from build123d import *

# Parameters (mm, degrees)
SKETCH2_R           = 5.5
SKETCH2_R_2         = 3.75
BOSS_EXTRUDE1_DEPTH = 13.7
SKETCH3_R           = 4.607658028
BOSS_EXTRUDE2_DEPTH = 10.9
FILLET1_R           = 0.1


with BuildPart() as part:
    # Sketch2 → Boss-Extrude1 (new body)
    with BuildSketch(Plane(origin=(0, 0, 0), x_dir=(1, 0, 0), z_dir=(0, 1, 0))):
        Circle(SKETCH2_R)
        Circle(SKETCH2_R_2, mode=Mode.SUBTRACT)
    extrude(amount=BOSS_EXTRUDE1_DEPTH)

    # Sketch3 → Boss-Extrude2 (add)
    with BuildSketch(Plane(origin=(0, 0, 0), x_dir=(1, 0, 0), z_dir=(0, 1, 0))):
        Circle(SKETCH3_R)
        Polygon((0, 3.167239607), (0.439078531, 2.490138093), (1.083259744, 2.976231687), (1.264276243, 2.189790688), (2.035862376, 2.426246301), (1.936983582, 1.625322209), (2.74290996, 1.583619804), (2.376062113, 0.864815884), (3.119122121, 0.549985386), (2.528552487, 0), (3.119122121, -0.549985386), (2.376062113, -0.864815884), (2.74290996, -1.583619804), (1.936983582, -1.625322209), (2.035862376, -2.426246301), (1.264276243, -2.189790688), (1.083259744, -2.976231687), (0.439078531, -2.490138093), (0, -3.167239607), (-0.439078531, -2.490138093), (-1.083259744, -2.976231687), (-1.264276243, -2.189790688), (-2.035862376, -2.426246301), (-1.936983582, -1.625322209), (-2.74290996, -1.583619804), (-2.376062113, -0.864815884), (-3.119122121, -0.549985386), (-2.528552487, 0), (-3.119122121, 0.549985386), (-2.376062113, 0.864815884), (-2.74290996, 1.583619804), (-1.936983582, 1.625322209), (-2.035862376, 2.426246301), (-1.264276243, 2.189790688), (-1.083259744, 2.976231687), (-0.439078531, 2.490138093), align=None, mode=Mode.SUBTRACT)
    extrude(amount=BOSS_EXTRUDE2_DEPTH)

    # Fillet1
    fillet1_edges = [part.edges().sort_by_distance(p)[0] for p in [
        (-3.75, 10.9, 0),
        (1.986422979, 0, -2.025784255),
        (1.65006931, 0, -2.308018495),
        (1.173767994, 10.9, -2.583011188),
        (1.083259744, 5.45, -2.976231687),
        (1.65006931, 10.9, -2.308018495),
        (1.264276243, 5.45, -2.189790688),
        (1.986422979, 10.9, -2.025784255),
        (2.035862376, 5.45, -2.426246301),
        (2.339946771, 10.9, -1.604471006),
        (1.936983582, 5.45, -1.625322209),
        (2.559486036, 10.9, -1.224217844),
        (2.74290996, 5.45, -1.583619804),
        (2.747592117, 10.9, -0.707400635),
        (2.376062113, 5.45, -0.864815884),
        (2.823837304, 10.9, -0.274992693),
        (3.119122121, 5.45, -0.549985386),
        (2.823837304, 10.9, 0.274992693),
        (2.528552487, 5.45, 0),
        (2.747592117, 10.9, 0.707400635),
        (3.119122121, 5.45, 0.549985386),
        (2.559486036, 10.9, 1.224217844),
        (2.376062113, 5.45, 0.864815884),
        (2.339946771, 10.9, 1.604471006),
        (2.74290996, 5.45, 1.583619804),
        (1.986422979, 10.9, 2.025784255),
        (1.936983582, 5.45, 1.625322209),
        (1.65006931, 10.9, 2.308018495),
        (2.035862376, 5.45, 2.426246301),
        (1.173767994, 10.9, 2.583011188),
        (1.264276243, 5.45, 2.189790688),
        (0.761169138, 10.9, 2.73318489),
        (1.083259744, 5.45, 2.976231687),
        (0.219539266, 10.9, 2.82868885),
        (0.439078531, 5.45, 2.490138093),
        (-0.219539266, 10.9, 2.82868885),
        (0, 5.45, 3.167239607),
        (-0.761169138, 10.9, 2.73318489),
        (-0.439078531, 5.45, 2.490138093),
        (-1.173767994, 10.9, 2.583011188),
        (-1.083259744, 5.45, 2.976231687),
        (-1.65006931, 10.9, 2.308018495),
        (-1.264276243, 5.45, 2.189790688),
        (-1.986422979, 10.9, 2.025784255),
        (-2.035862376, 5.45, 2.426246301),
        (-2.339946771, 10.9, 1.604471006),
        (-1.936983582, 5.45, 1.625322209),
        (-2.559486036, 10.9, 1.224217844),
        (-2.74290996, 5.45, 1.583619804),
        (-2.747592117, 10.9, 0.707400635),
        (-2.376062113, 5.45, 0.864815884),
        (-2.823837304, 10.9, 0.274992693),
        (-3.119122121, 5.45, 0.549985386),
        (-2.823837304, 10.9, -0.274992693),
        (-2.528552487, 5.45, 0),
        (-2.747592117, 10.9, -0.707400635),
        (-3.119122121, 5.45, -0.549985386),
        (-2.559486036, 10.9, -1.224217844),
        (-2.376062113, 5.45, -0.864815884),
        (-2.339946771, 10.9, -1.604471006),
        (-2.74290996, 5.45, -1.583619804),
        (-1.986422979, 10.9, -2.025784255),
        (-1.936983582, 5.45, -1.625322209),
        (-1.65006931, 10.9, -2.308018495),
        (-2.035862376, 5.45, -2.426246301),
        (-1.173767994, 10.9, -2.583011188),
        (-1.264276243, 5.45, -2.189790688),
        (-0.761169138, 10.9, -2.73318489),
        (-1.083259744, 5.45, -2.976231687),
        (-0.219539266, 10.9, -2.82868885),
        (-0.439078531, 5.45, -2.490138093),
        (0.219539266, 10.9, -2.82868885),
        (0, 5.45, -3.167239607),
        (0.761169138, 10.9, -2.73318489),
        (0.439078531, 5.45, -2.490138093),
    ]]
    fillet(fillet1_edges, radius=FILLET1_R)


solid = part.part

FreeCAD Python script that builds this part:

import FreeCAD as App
import Part
import Sketcher
from FreeCAD import Vector
Q = App.Units.Quantity


def edges_at(feature, points):
    """Names of the edges that pass closest to the given points."""
    edges = feature.Shape.Edges
    near = lambda p: min(range(len(edges)), key=lambda i: edges[i].distToShape(Part.Vertex(*p))[0])
    return sorted({f"Edge{near(p) + 1}" for p in points})

doc = App.newDocument("Part")
body = doc.addObject("PartDesign::Body", "Body")

# Sketch on XZ plane
sketch1 = body.newObject("Sketcher::SketchObject", "Sketch")
sketch1.AttachmentSupport = (doc.getObject("XZ_Plane"), [""])
sketch1.MapMode = "FlatFace"
sketch1.addGeometry(Part.Circle(Vector(0, 0, 0), Vector(0, 0, 1), 5.5), False)
sketch1.addGeometry(Part.Circle(Vector(0, 0, 0), Vector(0, 0, 1), 3.8), False)
sketch1.addConstraint(Sketcher.Constraint("Coincident", 0, 3, -1, 1))
sketch1.addConstraint(Sketcher.Constraint("Coincident", 1, 3, -1, 1))
sketch1.addConstraint(Sketcher.Constraint("Diameter", 0, Q("11 mm")))
sketch1.addConstraint(Sketcher.Constraint("Diameter", 1, Q("7.5 mm")))
pad1 = body.newObject("PartDesign::Pad", "Pad")
pad1.Profile = sketch1
pad1.Length = 13.7
pad1.Reversed = True

# Sketch on XZ plane
sketch2 = body.newObject("Sketcher::SketchObject", "Sketch001")
sketch2.AttachmentSupport = (doc.getObject("XZ_Plane"), [""])
sketch2.MapMode = "FlatFace"
sketch2.addGeometry(Part.Circle(Vector(0, 0, 0), Vector(0, 0, 1), 4.6), False)
sketch2.addGeometry(Part.LineSegment(Vector(-0.4, -2.5, 0), Vector(0, -3.2, 0)), False)
sketch2.addGeometry(Part.LineSegment(Vector(0, -3.2, 0), Vector(0.4, -2.5, 0)), False)
sketch2.addGeometry(Part.LineSegment(Vector(0.4, -2.5, 0), Vector(1.1, -3, 0)), False)
sketch2.addGeometry(Part.LineSegment(Vector(1.1, -3, 0), Vector(1.3, -2.2, 0)), False)
sketch2.addGeometry(Part.LineSegment(Vector(1.3, -2.2, 0), Vector(2, -2.4, 0)), False)
sketch2.addGeometry(Part.LineSegment(Vector(2, -2.4, 0), Vector(1.9, -1.6, 0)), False)
sketch2.addGeometry(Part.LineSegment(Vector(1.9, -1.6, 0), Vector(2.7, -1.6, 0)), False)
sketch2.addGeometry(Part.LineSegment(Vector(2.7, -1.6, 0), Vector(2.4, -0.9, 0)), False)
sketch2.addGeometry(Part.LineSegment(Vector(2.4, -0.9, 0), Vector(3.1, -0.5, 0)), False)
sketch2.addGeometry(Part.LineSegment(Vector(3.1, -0.5, 0), Vector(2.5, 0, 0)), False)
sketch2.addGeometry(Part.LineSegment(Vector(2.5, 0, 0), Vector(3.1, 0.5, 0)), False)
sketch2.addGeometry(Part.LineSegment(Vector(3.1, 0.5, 0), Vector(2.4, 0.9, 0)), False)
sketch2.addGeometry(Part.LineSegment(Vector(2.4, 0.9, 0), Vector(2.7, 1.6, 0)), False)
sketch2.addGeometry(Part.LineSegment(Vector(2.7, 1.6, 0), Vector(1.9, 1.6, 0)), False)
sketch2.addGeometry(Part.LineSegment(Vector(1.9, 1.6, 0), Vector(2, 2.4, 0)), False)
sketch2.addGeometry(Part.LineSegment(Vector(2, 2.4, 0), Vector(1.3, 2.2, 0)), False)
sketch2.addGeometry(Part.LineSegment(Vector(1.3, 2.2, 0), Vector(1.1, 3, 0)), False)
sketch2.addGeometry(Part.LineSegment(Vector(1.1, 3, 0), Vector(0.4, 2.5, 0)), False)
sketch2.addGeometry(Part.LineSegment(Vector(0.4, 2.5, 0), Vector(0, 3.2, 0)), False)
sketch2.addGeometry(Part.LineSegment(Vector(0, 3.2, 0), Vector(-0.4, 2.5, 0)), False)
sketch2.addGeometry(Part.LineSegment(Vector(-0.4, 2.5, 0), Vector(-1.1, 3, 0)), False)
sketch2.addGeometry(Part.LineSegment(Vector(-1.1, 3, 0), Vector(-1.3, 2.2, 0)), False)
sketch2.addGeometry(Part.LineSegment(Vector(-1.3, 2.2, 0), Vector(-2, 2.4, 0)), False)
sketch2.addGeometry(Part.LineSegment(Vector(-2, 2.4, 0), Vector(-1.9, 1.6, 0)), False)
sketch2.addGeometry(Part.LineSegment(Vector(-1.9, 1.6, 0), Vector(-2.7, 1.6, 0)), False)
sketch2.addGeometry(Part.LineSegment(Vector(-2.7, 1.6, 0), Vector(-2.4, 0.9, 0)), False)
sketch2.addGeometry(Part.LineSegment(Vector(-2.4, 0.9, 0), Vector(-3.1, 0.5, 0)), False)
sketch2.addGeometry(Part.LineSegment(Vector(-3.1, 0.5, 0), Vector(-2.5, 0, 0)), False)
sketch2.addGeometry(Part.LineSegment(Vector(-2.5, 0, 0), Vector(-3.1, -0.5, 0)), False)
sketch2.addGeometry(Part.LineSegment(Vector(-3.1, -0.5, 0), Vector(-2.4, -0.9, 0)), False)
sketch2.addGeometry(Part.LineSegment(Vector(-2.4, -0.9, 0), Vector(-2.7, -1.6, 0)), False)
sketch2.addGeometry(Part.LineSegment(Vector(-2.7, -1.6, 0), Vector(-1.9, -1.6, 0)), False)
sketch2.addGeometry(Part.LineSegment(Vector(-1.9, -1.6, 0), Vector(-2, -2.4, 0)), False)
sketch2.addGeometry(Part.LineSegment(Vector(-2, -2.4, 0), Vector(-1.3, -2.2, 0)), False)
sketch2.addGeometry(Part.LineSegment(Vector(-1.3, -2.2, 0), Vector(-1.1, -3, 0)), False)
sketch2.addGeometry(Part.LineSegment(Vector(-1.1, -3, 0), Vector(-0.4, -2.5, 0)), False)
sketch2.addConstraint(Sketcher.Constraint("Coincident", 1, 2, 2, 1))
sketch2.addConstraint(Sketcher.Constraint("Coincident", 2, 2, 3, 1))
sketch2.addConstraint(Sketcher.Constraint("Coincident", 3, 2, 4, 1))
sketch2.addConstraint(Sketcher.Constraint("Coincident", 4, 2, 5, 1))
sketch2.addConstraint(Sketcher.Constraint("Coincident", 5, 2, 6, 1))
sketch2.addConstraint(Sketcher.Constraint("Coincident", 6, 2, 7, 1))
sketch2.addConstraint(Sketcher.Constraint("Coincident", 7, 2, 8, 1))
sketch2.addConstraint(Sketcher.Constraint("Coincident", 8, 2, 9, 1))
sketch2.addConstraint(Sketcher.Constraint("Coincident", 9, 2, 10, 1))
sketch2.addConstraint(Sketcher.Constraint("Coincident", 10, 2, 11, 1))
sketch2.addConstraint(Sketcher.Constraint("Coincident", 11, 2, 12, 1))
sketch2.addConstraint(Sketcher.Constraint("Coincident", 12, 2, 13, 1))
sketch2.addConstraint(Sketcher.Constraint("Coincident", 13, 2, 14, 1))
sketch2.addConstraint(Sketcher.Constraint("Coincident", 14, 2, 15, 1))
sketch2.addConstraint(Sketcher.Constraint("Coincident", 15, 2, 16, 1))
sketch2.addConstraint(Sketcher.Constraint("Coincident", 16, 2, 17, 1))
sketch2.addConstraint(Sketcher.Constraint("Coincident", 17, 2, 18, 1))
sketch2.addConstraint(Sketcher.Constraint("Coincident", 18, 2, 19, 1))
sketch2.addConstraint(Sketcher.Constraint("Coincident", 19, 2, 20, 1))
sketch2.addConstraint(Sketcher.Constraint("Coincident", 20, 2, 21, 1))
sketch2.addConstraint(Sketcher.Constraint("Coincident", 21, 2, 22, 1))
sketch2.addConstraint(Sketcher.Constraint("Coincident", 22, 2, 23, 1))
sketch2.addConstraint(Sketcher.Constraint("Coincident", 23, 2, 24, 1))
sketch2.addConstraint(Sketcher.Constraint("Coincident", 24, 2, 25, 1))
sketch2.addConstraint(Sketcher.Constraint("Coincident", 25, 2, 26, 1))
sketch2.addConstraint(Sketcher.Constraint("Coincident", 26, 2, 27, 1))
sketch2.addConstraint(Sketcher.Constraint("Coincident", 27, 2, 28, 1))
sketch2.addConstraint(Sketcher.Constraint("Coincident", 28, 2, 29, 1))
sketch2.addConstraint(Sketcher.Constraint("Coincident", 29, 2, 30, 1))
sketch2.addConstraint(Sketcher.Constraint("Coincident", 30, 2, 31, 1))
sketch2.addConstraint(Sketcher.Constraint("Coincident", 31, 2, 32, 1))
sketch2.addConstraint(Sketcher.Constraint("Coincident", 32, 2, 33, 1))
sketch2.addConstraint(Sketcher.Constraint("Coincident", 33, 2, 34, 1))
sketch2.addConstraint(Sketcher.Constraint("Coincident", 34, 2, 35, 1))
sketch2.addConstraint(Sketcher.Constraint("Coincident", 35, 2, 36, 1))
sketch2.addConstraint(Sketcher.Constraint("Coincident", 36, 2, 1, 1))
sketch2.addConstraint(Sketcher.Constraint("Coincident", 0, 3, -1, 1))
sketch2.addConstraint(Sketcher.Constraint("Symmetric", 1, 2, 19, 2, -1, 1))
sketch2.addConstraint(Sketcher.Constraint("Symmetric", 2, 2, 20, 2, -1, 1))
sketch2.addConstraint(Sketcher.Constraint("Symmetric", 3, 2, 21, 2, -1, 1))
sketch2.addConstraint(Sketcher.Constraint("Symmetric", 4, 2, 22, 2, -1, 1))
sketch2.addConstraint(Sketcher.Constraint("Symmetric", 5, 2, 23, 2, -1, 1))
sketch2.addConstraint(Sketcher.Constraint("Symmetric", 6, 2, 24, 2, -1, 1))
sketch2.addConstraint(Sketcher.Constraint("Symmetric", 7, 2, 25, 2, -1, 1))
sketch2.addConstraint(Sketcher.Constraint("Symmetric", 8, 2, 26, 2, -1, 1))
sketch2.addConstraint(Sketcher.Constraint("Symmetric", 9, 2, 27, 2, -1, 1))
sketch2.addConstraint(Sketcher.Constraint("Symmetric", 10, 2, 28, 2, -1, 1))
sketch2.addConstraint(Sketcher.Constraint("Symmetric", 11, 2, 29, 2, -1, 1))
sketch2.addConstraint(Sketcher.Constraint("Symmetric", 12, 2, 30, 2, -1, 1))
sketch2.addConstraint(Sketcher.Constraint("Symmetric", 13, 2, 31, 2, -1, 1))
sketch2.addConstraint(Sketcher.Constraint("Symmetric", 14, 2, 32, 2, -1, 1))
sketch2.addConstraint(Sketcher.Constraint("Symmetric", 15, 2, 33, 2, -1, 1))
sketch2.addConstraint(Sketcher.Constraint("Symmetric", 16, 2, 34, 2, -1, 1))
sketch2.addConstraint(Sketcher.Constraint("Symmetric", 17, 2, 35, 2, -1, 1))
sketch2.addConstraint(Sketcher.Constraint("Symmetric", 18, 2, 36, 2, -1, 1))
sketch2.addConstraint(Sketcher.Constraint("Symmetric", 18, 2, 20, 2, -2))
sketch2.addConstraint(Sketcher.Constraint("Symmetric", 17, 2, 21, 2, -2))
sketch2.addConstraint(Sketcher.Constraint("Symmetric", 16, 2, 22, 2, -2))
sketch2.addConstraint(Sketcher.Constraint("Symmetric", 15, 2, 23, 2, -2))
sketch2.addConstraint(Sketcher.Constraint("Symmetric", 14, 2, 24, 2, -2))
sketch2.addConstraint(Sketcher.Constraint("Symmetric", 13, 2, 25, 2, -2))
sketch2.addConstraint(Sketcher.Constraint("Symmetric", 12, 2, 26, 2, -2))
sketch2.addConstraint(Sketcher.Constraint("Symmetric", 11, 2, 27, 2, -2))
sketch2.addConstraint(Sketcher.Constraint("PointOnObject", 1, 2, -2))
sketch2.addConstraint(Sketcher.Constraint("PointOnObject", 10, 2, -1))
sketch2.addConstraint(Sketcher.Constraint("Equal", 2, 3))
sketch2.addConstraint(Sketcher.Constraint("Equal", 3, 4))
sketch2.addConstraint(Sketcher.Constraint("Equal", 4, 5))
sketch2.addConstraint(Sketcher.Constraint("Equal", 5, 6))
sketch2.addConstraint(Sketcher.Constraint("Equal", 6, 7))
sketch2.addConstraint(Sketcher.Constraint("Equal", 7, 8))
sketch2.addConstraint(Sketcher.Constraint("Equal", 8, 9))
sketch2.addConstraint(Sketcher.Constraint("Equal", 9, 10))
sketch2.addConstraint(Sketcher.Constraint("Diameter", 0, Q("9.215316 mm")))
sketch2.addConstraint(Sketcher.Constraint("DistanceY", 1, 2, 2, 2, Q("0.677102 mm")))
sketch2.addConstraint(Sketcher.Constraint("DistanceX", 5, 2, 8, 2, Q("0.3402 mm")))
sketch2.addConstraint(Sketcher.Constraint("DistanceY", 8, 2, 11, 2, Q("1.414801 mm")))
sketch2.addConstraint(Sketcher.Constraint("DistanceY", 1, 2, -1, 1, Q("3.16724 mm")))
sketch2.addConstraint(Sketcher.Constraint("DistanceX", -1, 1, 2, 2, Q("0.439079 mm")))
sketch2.addConstraint(Sketcher.Constraint("DistanceX", -1, 1, 3, 2, Q("1.08326 mm")))
sketch2.addConstraint(Sketcher.Constraint("DistanceY", 4, 2, -1, 1, Q("2.189791 mm")))
sketch2.addConstraint(Sketcher.Constraint("DistanceX", -1, 1, 7, 2, Q("2.74291 mm")))
sketch2.addConstraint(Sketcher.Constraint("DistanceY", 7, 2, -1, 1, Q("1.58362 mm")))
sketch2.addConstraint(Sketcher.Constraint("DistanceY", 2, 2, 5, 2, Q("0.063892 mm")))
pad2 = body.newObject("PartDesign::Pad", "Pad001")
pad2.Profile = sketch2
pad2.Length = 10.9
pad2.Reversed = True
doc.recompute()

fillet = body.newObject("PartDesign::Fillet", "Fillet")
fillet.Base = (pad2, edges_at(pad2, [
    (-3.75, 10.9, 0),
    (1.986, 0, -2.026),
    (1.65, 0, -2.308),
    (1.174, 10.9, -2.583),
    (1.083, 5.45, -2.976),
    (1.65, 10.9, -2.308),
    (1.264, 5.45, -2.19),
    (1.986, 10.9, -2.026),
    (2.036, 5.45, -2.426),
    (2.34, 10.9, -1.604),
    (1.937, 5.45, -1.625),
    (2.559, 10.9, -1.224),
    (2.743, 5.45, -1.584),
    (2.748, 10.9, -0.707),
    (2.376, 5.45, -0.865),
    (2.824, 10.9, -0.275),
    (3.119, 5.45, -0.55),
    (2.824, 10.9, 0.275),
    (2.529, 5.45, 0),
    (2.748, 10.9, 0.707),
    (3.119, 5.45, 0.55),
    (2.559, 10.9, 1.224),
    (2.376, 5.45, 0.865),
    (2.34, 10.9, 1.604),
    (2.743, 5.45, 1.584),
    (1.986, 10.9, 2.026),
    (1.937, 5.45, 1.625),
    (1.65, 10.9, 2.308),
    (2.036, 5.45, 2.426),
    (1.174, 10.9, 2.583),
    (1.264, 5.45, 2.19),
    (0.761, 10.9, 2.733),
    (1.083, 5.45, 2.976),
    (0.22, 10.9, 2.829),
    (0.439, 5.45, 2.49),
    (-0.22, 10.9, 2.829),
    (0, 5.45, 3.167),
    (-0.761, 10.9, 2.733),
    (-0.439, 5.45, 2.49),
    (-1.174, 10.9, 2.583),
    (-1.083, 5.45, 2.976),
    (-1.65, 10.9, 2.308),
    (-1.264, 5.45, 2.19),
    (-1.986, 10.9, 2.026),
    (-2.036, 5.45, 2.426),
    (-2.34, 10.9, 1.604),
    (-1.937, 5.45, 1.625),
    (-2.559, 10.9, 1.224),
    (-2.743, 5.45, 1.584),
    (-2.748, 10.9, 0.707),
    (-2.376, 5.45, 0.865),
    (-2.824, 10.9, 0.275),
    (-3.119, 5.45, 0.55),
    (-2.824, 10.9, -0.275),
    (-2.529, 5.45, 0),
    (-2.748, 10.9, -0.707),
    (-3.119, 5.45, -0.55),
    (-2.559, 10.9, -1.224),
    (-2.376, 5.45, -0.865),
    (-2.34, 10.9, -1.604),
    (-2.743, 5.45, -1.584),
    (-1.986, 10.9, -2.026),
    (-1.937, 5.45, -1.625),
    (-1.65, 10.9, -2.308),
    (-2.036, 5.45, -2.426),
    (-1.174, 10.9, -2.583),
    (-1.264, 5.45, -2.19),
    (-0.761, 10.9, -2.733),
    (-1.083, 5.45, -2.976),
    (-0.22, 10.9, -2.829),
    (-0.439, 5.45, -2.49),
    (0.22, 10.9, -2.829),
    (0, 5.45, -3.167),
    (0.761, 10.9, -2.733),
    (0.439, 5.45, -2.49),
]))
fillet.Radius = 0.1

doc.recompute()
